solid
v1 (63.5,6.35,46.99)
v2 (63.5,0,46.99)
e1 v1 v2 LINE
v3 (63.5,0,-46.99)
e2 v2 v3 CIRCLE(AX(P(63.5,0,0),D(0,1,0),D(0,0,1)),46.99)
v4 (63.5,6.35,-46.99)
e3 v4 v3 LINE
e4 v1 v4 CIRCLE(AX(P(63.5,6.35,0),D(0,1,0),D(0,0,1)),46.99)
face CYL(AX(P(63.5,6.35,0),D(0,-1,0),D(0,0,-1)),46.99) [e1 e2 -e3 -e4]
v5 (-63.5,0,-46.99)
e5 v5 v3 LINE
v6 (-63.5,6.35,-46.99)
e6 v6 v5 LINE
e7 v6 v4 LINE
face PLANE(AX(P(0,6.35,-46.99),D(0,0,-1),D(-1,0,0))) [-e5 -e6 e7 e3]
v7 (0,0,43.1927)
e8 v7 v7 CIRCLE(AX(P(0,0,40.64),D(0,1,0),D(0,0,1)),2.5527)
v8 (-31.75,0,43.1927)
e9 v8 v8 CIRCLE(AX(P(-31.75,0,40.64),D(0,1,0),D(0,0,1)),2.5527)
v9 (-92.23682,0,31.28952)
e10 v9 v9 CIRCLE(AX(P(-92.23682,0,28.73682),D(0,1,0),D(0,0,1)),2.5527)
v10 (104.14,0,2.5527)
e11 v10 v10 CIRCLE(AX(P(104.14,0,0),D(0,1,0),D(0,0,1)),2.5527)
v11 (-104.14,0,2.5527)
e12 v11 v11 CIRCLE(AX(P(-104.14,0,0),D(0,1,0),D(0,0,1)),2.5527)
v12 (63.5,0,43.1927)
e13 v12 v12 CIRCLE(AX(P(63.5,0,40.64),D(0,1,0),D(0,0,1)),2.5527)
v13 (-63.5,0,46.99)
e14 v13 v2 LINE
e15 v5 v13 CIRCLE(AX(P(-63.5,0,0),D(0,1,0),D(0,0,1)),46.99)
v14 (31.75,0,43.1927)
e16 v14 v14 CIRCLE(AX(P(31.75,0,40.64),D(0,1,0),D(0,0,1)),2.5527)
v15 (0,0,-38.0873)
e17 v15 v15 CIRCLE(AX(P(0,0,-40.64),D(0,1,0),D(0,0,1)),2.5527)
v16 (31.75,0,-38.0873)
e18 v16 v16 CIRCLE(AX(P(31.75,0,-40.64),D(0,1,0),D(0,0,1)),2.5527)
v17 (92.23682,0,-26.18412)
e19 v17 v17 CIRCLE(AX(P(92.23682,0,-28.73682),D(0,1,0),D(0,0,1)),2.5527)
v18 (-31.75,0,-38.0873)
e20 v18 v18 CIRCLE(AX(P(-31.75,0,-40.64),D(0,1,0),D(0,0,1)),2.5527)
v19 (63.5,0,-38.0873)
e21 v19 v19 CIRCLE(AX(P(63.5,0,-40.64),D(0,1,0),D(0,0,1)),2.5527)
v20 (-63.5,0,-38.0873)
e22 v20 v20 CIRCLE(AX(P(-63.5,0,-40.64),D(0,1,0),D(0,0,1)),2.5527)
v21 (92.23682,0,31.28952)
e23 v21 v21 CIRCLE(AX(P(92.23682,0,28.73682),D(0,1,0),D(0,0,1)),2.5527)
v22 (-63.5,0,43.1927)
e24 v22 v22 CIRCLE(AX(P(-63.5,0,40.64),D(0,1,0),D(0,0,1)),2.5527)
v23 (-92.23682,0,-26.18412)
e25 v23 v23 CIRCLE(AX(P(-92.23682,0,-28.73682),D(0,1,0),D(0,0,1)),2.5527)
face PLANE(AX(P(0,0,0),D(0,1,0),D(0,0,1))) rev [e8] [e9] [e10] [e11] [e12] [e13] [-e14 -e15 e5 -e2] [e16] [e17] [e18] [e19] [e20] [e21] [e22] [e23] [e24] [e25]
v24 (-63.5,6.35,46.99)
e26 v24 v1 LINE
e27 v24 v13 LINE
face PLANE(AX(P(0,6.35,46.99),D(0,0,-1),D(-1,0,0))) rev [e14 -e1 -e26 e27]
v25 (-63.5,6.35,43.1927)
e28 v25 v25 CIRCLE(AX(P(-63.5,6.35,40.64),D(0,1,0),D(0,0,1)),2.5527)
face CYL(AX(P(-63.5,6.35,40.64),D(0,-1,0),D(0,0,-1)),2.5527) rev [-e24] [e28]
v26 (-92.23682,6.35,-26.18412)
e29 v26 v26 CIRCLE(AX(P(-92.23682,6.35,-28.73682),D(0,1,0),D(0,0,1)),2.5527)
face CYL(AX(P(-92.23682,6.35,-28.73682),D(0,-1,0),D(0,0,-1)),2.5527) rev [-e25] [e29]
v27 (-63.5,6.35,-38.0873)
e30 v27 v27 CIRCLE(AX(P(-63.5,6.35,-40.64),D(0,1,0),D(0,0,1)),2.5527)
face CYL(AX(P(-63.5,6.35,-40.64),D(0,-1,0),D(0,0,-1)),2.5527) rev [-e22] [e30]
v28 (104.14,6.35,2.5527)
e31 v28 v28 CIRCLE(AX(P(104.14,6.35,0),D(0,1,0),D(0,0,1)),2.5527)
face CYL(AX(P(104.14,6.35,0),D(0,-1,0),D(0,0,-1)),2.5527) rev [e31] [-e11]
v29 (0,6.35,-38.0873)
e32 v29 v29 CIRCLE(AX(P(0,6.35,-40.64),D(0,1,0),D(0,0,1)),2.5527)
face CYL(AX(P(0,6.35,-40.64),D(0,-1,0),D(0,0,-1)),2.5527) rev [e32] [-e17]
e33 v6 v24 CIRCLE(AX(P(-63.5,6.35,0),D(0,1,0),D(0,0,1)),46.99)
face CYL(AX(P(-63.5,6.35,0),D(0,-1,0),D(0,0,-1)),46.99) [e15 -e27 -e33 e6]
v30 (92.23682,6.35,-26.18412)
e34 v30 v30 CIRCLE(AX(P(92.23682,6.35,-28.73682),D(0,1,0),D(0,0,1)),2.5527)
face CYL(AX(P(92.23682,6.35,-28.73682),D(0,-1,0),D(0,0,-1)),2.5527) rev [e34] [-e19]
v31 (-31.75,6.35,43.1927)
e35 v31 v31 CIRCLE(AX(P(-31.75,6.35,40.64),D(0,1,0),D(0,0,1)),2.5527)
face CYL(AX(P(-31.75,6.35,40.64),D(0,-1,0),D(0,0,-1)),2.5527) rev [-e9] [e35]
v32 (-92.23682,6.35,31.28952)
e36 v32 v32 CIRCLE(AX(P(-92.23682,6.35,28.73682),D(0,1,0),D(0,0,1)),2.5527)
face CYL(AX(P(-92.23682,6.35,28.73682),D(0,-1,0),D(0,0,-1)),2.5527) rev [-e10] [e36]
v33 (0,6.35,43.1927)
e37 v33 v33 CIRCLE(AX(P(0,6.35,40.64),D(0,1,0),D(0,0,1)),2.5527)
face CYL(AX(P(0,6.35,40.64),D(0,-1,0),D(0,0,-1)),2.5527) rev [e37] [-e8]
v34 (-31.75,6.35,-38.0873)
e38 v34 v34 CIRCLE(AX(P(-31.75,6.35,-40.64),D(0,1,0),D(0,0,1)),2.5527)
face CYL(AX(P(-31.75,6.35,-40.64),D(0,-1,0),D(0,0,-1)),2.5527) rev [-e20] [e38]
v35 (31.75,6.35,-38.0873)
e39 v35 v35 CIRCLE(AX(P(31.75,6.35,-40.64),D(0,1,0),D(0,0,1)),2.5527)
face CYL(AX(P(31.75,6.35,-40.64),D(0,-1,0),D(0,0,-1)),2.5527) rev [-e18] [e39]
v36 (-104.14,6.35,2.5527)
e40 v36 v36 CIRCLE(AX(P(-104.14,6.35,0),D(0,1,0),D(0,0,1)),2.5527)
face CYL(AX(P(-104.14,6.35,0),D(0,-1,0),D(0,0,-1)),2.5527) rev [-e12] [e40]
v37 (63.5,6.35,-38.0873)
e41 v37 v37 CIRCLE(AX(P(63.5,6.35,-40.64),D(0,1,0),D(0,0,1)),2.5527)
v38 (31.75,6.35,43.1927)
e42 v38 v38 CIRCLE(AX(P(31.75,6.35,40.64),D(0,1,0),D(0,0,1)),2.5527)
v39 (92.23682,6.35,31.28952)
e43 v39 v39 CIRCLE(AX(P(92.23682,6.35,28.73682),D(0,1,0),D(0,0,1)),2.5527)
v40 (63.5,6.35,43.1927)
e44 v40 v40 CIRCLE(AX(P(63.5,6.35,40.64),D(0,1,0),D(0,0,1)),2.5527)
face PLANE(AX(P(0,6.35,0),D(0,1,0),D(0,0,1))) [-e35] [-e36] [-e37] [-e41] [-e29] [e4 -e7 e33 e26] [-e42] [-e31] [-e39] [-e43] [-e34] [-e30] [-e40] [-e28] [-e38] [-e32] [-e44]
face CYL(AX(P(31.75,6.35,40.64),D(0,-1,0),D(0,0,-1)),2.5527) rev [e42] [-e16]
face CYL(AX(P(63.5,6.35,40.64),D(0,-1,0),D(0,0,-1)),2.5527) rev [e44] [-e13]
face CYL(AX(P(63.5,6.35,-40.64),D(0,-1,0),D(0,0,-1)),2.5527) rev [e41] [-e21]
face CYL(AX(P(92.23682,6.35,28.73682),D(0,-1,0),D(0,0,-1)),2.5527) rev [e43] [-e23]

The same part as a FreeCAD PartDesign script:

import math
import FreeCAD as App
import Part
import Sketcher

V = App.Vector
Q = App.Units.Quantity

doc = App.newDocument("Part")
body = doc.addObject("PartDesign::Body", "Body")

# Sketch on XZ plane
sketch1 = body.newObject("Sketcher::SketchObject", "Sketch")
sketch1.AttachmentSupport = (doc.getObject("XZ_Plane"), [""])
sketch1.MapMode = "FlatFace"
sketch1.addGeometry([
    Part.LineSegment(V(63.5, -47, 0), V(-63.5, -47, 0)),  # 0
    Part.ArcOfCircle(Part.Circle(V(-63.5, 0, 0), V(0, 0, 1), 47), math.radians(90), math.radians(270)),  # 1
    Part.LineSegment(V(-63.5, 47, 0), V(63.5, 47, 0)),  # 2
    Part.ArcOfCircle(Part.Circle(V(63.5, 0, 0), V(0, 0, 1), 47), math.radians(-90), math.radians(90)),  # 3
    Part.Circle(V(63.5, 40.6, 0), V(0, 0, 1), 2.6),  # 4
    Part.Circle(V(92.2, 28.7, 0), V(0, 0, 1), 2.6),  # 5
    Part.Circle(V(31.8, 40.6, 0), V(0, 0, 1), 2.6),  # 6
    Part.Circle(V(104.1, 0, 0), V(0, 0, 1), 2.6),  # 7
    Part.Circle(V(0, 40.6, 0), V(0, 0, 1), 2.6),  # 8
    Part.Circle(V(-31.8, 40.6, 0), V(0, 0, 1), 2.6),  # 9
    Part.Circle(V(-63.5, 40.6, 0), V(0, 0, 1), 2.6),  # 10
    Part.Circle(V(-92.2, 28.7, 0), V(0, 0, 1), 2.6),  # 11
    Part.Circle(V(-104.1, 0, 0), V(0, 0, 1), 2.6),  # 12
    Part.Circle(V(92.2, -28.7, 0), V(0, 0, 1), 2.6),  # 13
    Part.Circle(V(63.5, -40.6, 0), V(0, 0, 1), 2.6),  # 14
    Part.Circle(V(31.8, -40.6, 0), V(0, 0, 1), 2.6),  # 15
    Part.Circle(V(0, -40.6, 0), V(0, 0, 1), 2.6),  # 16
    Part.Circle(V(-31.8, -40.6, 0), V(0, 0, 1), 2.6),  # 17
    Part.Circle(V(-92.2, -28.7, 0), V(0, 0, 1), 2.6),  # 18
    Part.Circle(V(-63.5, -40.6, 0), V(0, 0, 1), 2.6),  # 19
], False)
sketch1.addConstraint([
    Sketcher.Constraint("Tangent", 0, 2, 1, 2),
    Sketcher.Constraint("Tangent", 1, 1, 2, 1),
    Sketcher.Constraint("Tangent", 2, 2, 3, 2),
    Sketcher.Constraint("Tangent", 3, 1, 0, 1),
    Sketcher.Constraint("Horizontal", 0),
    Sketcher.Constraint("Horizontal", 2),
    Sketcher.Constraint("Equal", 4, 5),
    Sketcher.Constraint("Equal", 5, 6),
    Sketcher.Constraint("Equal", 6, 7),
    Sketcher.Constraint("Equal", 7, 8),
    Sketcher.Constraint("Equal", 8, 9),
    Sketcher.Constraint("Equal", 9, 10),
    Sketcher.Constraint("Equal", 10, 11),
    Sketcher.Constraint("Equal", 11, 12),
    Sketcher.Constraint("Equal", 12, 13),
    Sketcher.Constraint("Equal", 13, 14),
    Sketcher.Constraint("Equal", 14, 15),
    Sketcher.Constraint("Equal", 15, 16),
    Sketcher.Constraint("Equal", 16, 17),
    Sketcher.Constraint("Equal", 17, 18),
    Sketcher.Constraint("Equal", 18, 19),
    Sketcher.Constraint("Symmetric", 1, 3, 3, 3, -1, 1),
    Sketcher.Constraint("Symmetric", 7, 3, 12, 3, -1, 1),
    Sketcher.Constraint("Symmetric", 11, 3, 13, 3, -1, 1),
    Sketcher.Constraint("Symmetric", 10, 3, 14, 3, -1, 1),
    Sketcher.Constraint("Symmetric", 9, 3, 15, 3, -1, 1),
    Sketcher.Constraint("Symmetric", 8, 3, 16, 3, -1, 1),
    Sketcher.Constraint("Symmetric", 6, 3, 17, 3, -1, 1),
    Sketcher.Constraint("Symmetric", 5, 3, 18, 3, -1, 1),
    Sketcher.Constraint("Symmetric", 4, 3, 19, 3, -1, 1),
    Sketcher.Constraint("Symmetric", 6, 3, 9, 3, -2),
    Sketcher.Constraint("Symmetric", 4, 3, 10, 3, -2),
    Sketcher.Constraint("Symmetric", 5, 3, 11, 3, -2),
    Sketcher.Constraint("PointOnObject", 7, 3, -1),
    Sketcher.Constraint("PointOnObject", 8, 3, -2),
    Sketcher.Constraint("Horizontal", 4, 3, 6, 3),
    Sketcher.Constraint("Horizontal", 6, 3, 8, 3),
    Sketcher.Constraint("Vertical", 3, 3, 4, 3),
    Sketcher.Constraint("DistanceX", 0, 2, 0, 1, Q("5 in")),
    Sketcher.Constraint("Radius", 1, Q("1.85 in")),
    Sketcher.Constraint("Diameter", 4, Q("0.201 in")),
    Sketcher.Constraint("DistanceY", -1, 1, 4, 3, Q("1.6 in")),
    Sketcher.Constraint("DistanceX", -1, 1, 7, 3, Q("4.1 in")),
    Sketcher.Constraint("DistanceX", 9, 3, 6, 3, Q("2.5 in")),
    Sketcher.Constraint("DistanceX", -1, 1, 5, 3, Q("92.23682 mm")),
    Sketcher.Constraint("DistanceY", -1, 1, 5, 3, Q("28.73682 mm")),
])
pad1 = body.newObject("PartDesign::Pad", "Pad")
pad1.Profile = sketch1
pad1.Length = Q("0.25 in")
pad1.Reversed = True

doc.recompute()
